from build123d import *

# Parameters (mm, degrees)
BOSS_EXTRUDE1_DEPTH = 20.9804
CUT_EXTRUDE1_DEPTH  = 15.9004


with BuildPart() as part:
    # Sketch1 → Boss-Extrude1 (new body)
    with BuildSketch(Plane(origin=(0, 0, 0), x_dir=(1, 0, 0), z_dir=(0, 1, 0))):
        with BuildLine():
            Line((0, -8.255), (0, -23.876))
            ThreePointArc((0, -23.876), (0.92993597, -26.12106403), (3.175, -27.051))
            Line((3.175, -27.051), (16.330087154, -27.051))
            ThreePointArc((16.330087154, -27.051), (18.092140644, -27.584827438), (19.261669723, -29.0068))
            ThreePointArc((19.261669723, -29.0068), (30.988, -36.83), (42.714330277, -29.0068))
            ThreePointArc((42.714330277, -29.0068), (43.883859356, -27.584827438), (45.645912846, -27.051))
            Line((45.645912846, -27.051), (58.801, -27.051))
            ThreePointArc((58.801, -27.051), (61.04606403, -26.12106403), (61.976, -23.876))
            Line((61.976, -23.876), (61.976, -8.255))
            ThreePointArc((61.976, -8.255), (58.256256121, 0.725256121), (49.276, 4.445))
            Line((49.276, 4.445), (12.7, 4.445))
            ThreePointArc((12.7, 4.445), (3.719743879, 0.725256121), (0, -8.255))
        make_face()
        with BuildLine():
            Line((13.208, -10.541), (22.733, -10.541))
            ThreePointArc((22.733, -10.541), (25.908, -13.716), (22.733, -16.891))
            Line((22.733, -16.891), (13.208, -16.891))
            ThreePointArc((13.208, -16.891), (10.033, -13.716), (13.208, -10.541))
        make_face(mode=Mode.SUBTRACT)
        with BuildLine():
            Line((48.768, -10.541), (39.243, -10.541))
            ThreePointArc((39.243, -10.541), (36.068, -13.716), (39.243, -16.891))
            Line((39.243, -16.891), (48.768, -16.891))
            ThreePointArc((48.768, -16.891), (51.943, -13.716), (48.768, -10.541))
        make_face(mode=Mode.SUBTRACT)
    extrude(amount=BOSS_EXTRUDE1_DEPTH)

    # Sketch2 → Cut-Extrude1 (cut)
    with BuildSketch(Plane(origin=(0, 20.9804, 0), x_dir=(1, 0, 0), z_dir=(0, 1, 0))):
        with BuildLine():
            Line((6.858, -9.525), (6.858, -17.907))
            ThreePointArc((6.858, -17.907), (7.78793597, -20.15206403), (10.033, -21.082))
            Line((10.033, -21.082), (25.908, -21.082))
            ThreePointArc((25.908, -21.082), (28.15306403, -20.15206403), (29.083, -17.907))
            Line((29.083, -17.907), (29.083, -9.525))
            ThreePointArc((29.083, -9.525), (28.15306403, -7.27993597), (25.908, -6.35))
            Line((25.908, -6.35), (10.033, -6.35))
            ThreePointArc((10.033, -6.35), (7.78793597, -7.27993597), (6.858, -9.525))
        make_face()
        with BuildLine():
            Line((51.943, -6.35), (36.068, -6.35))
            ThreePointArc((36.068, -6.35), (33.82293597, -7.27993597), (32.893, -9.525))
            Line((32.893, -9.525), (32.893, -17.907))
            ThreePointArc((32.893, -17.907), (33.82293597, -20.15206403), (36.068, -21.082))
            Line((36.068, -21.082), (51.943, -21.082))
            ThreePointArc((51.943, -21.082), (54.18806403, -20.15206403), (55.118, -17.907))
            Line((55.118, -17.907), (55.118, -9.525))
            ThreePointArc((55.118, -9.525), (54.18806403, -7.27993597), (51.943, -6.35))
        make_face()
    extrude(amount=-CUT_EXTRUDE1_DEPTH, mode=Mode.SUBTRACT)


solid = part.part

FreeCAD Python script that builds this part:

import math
import FreeCAD as App
import Part
import Sketcher
Q = App.Units.Quantity

doc = App.newDocument("Part")
body = doc.addObject("PartDesign::Body", "Body")

# Sketch on XZ plane
sketch1 = doc.addObject("Sketcher::SketchObject", "Sketch")
body.addObject(sketch1)
sketch1.AttachmentSupport = (doc.XZ_Plane, [""])
sketch1.MapMode = "FlatFace"
sketch1.addGeometry([
    Part.LineSegment(App.Vector(0, 8.255, 0), App.Vector(0, 23.876, 0)),  # 0
    Part.ArcOfCircle(Part.Circle(App.Vector(3.175, 23.876, 0), App.Vector(0, 0, 1), 3.175), math.radians(90), math.radians(180)),  # 1
    Part.LineSegment(App.Vector(3.175, 27.051, 0), App.Vector(16.330087, 27.051, 0)),  # 2
    Part.ArcOfCircle(Part.Circle(App.Vector(16.330087, 30.226, 0), App.Vector(0, 0, 1), 3.175), math.radians(-90), math.radians(-22.581673)),  # 3
    Part.ArcOfCircle(Part.Circle(App.Vector(30.988, 24.13, 0), App.Vector(0, 0, 1), 12.7), math.radians(22.581673), math.radians(157.418327)),  # 4
    Part.ArcOfCircle(Part.Circle(App.Vector(45.645913, 30.226, 0), App.Vector(0, 0, 1), 3.175), math.radians(-157.418327), math.radians(-90)),  # 5
    Part.LineSegment(App.Vector(45.645913, 27.051, 0), App.Vector(58.801, 27.051, 0)),  # 6
    Part.ArcOfCircle(Part.Circle(App.Vector(58.801, 23.876, 0), App.Vector(0, 0, 1), 3.175), math.radians(0), math.radians(90)),  # 7
    Part.LineSegment(App.Vector(61.976, 23.876, 0), App.Vector(61.976, 8.255, 0)),  # 8
    Part.ArcOfCircle(Part.Circle(App.Vector(49.276, 8.255, 0), App.Vector(0, 0, 1), 12.7), math.radians(-90), math.radians(0)),  # 9
    Part.LineSegment(App.Vector(49.276, -4.445, 0), App.Vector(12.7, -4.445, 0)),  # 10
    Part.ArcOfCircle(Part.Circle(App.Vector(12.7, 8.255, 0), App.Vector(0, 0, 1), 12.7), math.radians(180), math.radians(270)),  # 11
    Part.ArcOfCircle(Part.Circle(App.Vector(13.208, 13.716, 0), App.Vector(0, 0, 1), 3.175), math.radians(90), math.radians(270)),  # 12
    Part.LineSegment(App.Vector(13.208, 10.541, 0), App.Vector(22.733, 10.541, 0)),  # 13
    Part.ArcOfCircle(Part.Circle(App.Vector(22.733, 13.716, 0), App.Vector(0, 0, 1), 3.175), math.radians(-90), math.radians(90)),  # 14
    Part.LineSegment(App.Vector(22.733, 16.891, 0), App.Vector(13.208, 16.891, 0)),  # 15
    Part.LineSegment(App.Vector(39.243, 10.541, 0), App.Vector(48.768, 10.541, 0)),  # 16
    Part.ArcOfCircle(Part.Circle(App.Vector(48.768, 13.716, 0), App.Vector(0, 0, 1), 3.175), math.radians(-90), math.radians(90)),  # 17
    Part.LineSegment(App.Vector(48.768, 16.891, 0), App.Vector(39.243, 16.891, 0)),  # 18
    Part.ArcOfCircle(Part.Circle(App.Vector(39.243, 13.716, 0), App.Vector(0, 0, 1), 3.175), math.radians(90), math.radians(270)),  # 19
], False)
sketch1.addConstraint([
    Sketcher.Constraint("Tangent", 0, 2, 1, 2),
    Sketcher.Constraint("Tangent", 1, 1, 2, 1),
    Sketcher.Constraint("Tangent", 2, 2, 3, 1),
    Sketcher.Constraint("Tangent", 3, 2, 4, 2),
    Sketcher.Constraint("Tangent", 4, 1, 5, 1),
    Sketcher.Constraint("Tangent", 5, 2, 6, 1),
    Sketcher.Constraint("Tangent", 6, 2, 7, 2),
    Sketcher.Constraint("Tangent", 7, 1, 8, 1),
    Sketcher.Constraint("Tangent", 8, 2, 9, 2),
    Sketcher.Constraint("Tangent", 9, 1, 10, 1),
    Sketcher.Constraint("Tangent", 10, 2, 11, 2),
    Sketcher.Constraint("Tangent", 11, 1, 0, 1),
    Sketcher.Constraint("Tangent", 12, 2, 13, 1),
    Sketcher.Constraint("Tangent", 13, 2, 14, 1),
    Sketcher.Constraint("Tangent", 14, 2, 15, 1),
    Sketcher.Constraint("Tangent", 15, 2, 12, 1),
    Sketcher.Constraint("Tangent", 16, 2, 17, 1),
    Sketcher.Constraint("Tangent", 17, 2, 18, 1),
    Sketcher.Constraint("Tangent", 18, 2, 19, 1),
    Sketcher.Constraint("Tangent", 19, 2, 16, 1),
    Sketcher.Constraint("Vertical", 0),
    Sketcher.Constraint("Horizontal", 2),
    Sketcher.Constraint("Horizontal", 6),
    Sketcher.Constraint("Vertical", 8),
    Sketcher.Constraint("Horizontal", 10),
    Sketcher.Constraint("Horizontal", 13),
    Sketcher.Constraint("Horizontal", 15),
    Sketcher.Constraint("Horizontal", 16),
    Sketcher.Constraint("Horizontal", 18),
    Sketcher.Constraint("Equal", 1, 3),
    Sketcher.Constraint("Equal", 3, 5),
    Sketcher.Constraint("Equal", 5, 7),
    Sketcher.Constraint("Equal", 4, 9),
    Sketcher.Constraint("Equal", 9, 11),
    Sketcher.Constraint("Equal", 7, 12),
    Sketcher.Constraint("Equal", 14, 17),
    Sketcher.Constraint("PointOnObject", 0, 2, -2),
    Sketcher.Constraint("Horizontal", 3, 3, 5, 3),
    Sketcher.Constraint("Horizontal", 14, 3, 17, 3),
    Sketcher.Constraint("Equal", 2, 6),
    Sketcher.Constraint("Equal", 15, 16),
    Sketcher.Constraint("Radius", 4, Q("0.5 in")),
    Sketcher.Constraint("Radius", 1, Q("0.125 in")),
    Sketcher.Constraint("DistanceX", 10, 2, 10, 1, Q("1.44 in")),
    Sketcher.Constraint("DistanceY", 12, 3, 1, 3, Q("0.4 in")),
    Sketcher.Constraint("DistanceX", 12, 3, 4, 3, Q("0.7 in")),
    Sketcher.Constraint("DistanceX", 4, 3, 17, 3, Q("0.7 in")),
    Sketcher.Constraint("DistanceX", 13, 1, 13, 2, Q("0.375 in")),
    Sketcher.Constraint("DistanceY", 0, 1, 0, 2, Q("0.615 in")),
    Sketcher.Constraint("DistanceY", -1, 1, 1, 3, Q("0.94 in")),
    Sketcher.Constraint("DistanceY", -1, 1, 4, 3, Q("0.95 in")),
])
pad1 = doc.addObject("PartDesign::Pad", "Pad")
body.addObject(pad1)
pad1.Profile = sketch1
pad1.Length = Q("0.826 in")
pad1.Reversed = True

# Sketch on XZ plane
sketch2 = doc.addObject("Sketcher::SketchObject", "Sketch001")
body.addObject(sketch2)
sketch2.AttachmentSupport = (doc.XZ_Plane, [""])
sketch2.MapMode = "FlatFace"
sketch2.AttachmentOffset = App.Placement(App.Vector(0, 0, -0.826 * 25.4), App.Rotation())
sketch2.addGeometry([
    Part.LineSegment(App.Vector(6.858, 9.525, 0), App.Vector(6.858, 17.907, 0)),  # 0
    Part.ArcOfCircle(Part.Circle(App.Vector(10.033, 17.907, 0), App.Vector(0, 0, 1), 3.175), math.radians(90), math.radians(180)),  # 1
    Part.LineSegment(App.Vector(10.033, 21.082, 0), App.Vector(25.908, 21.082, 0)),  # 2
    Part.ArcOfCircle(Part.Circle(App.Vector(25.908, 17.907, 0), App.Vector(0, 0, 1), 3.175), math.radians(0), math.radians(90)),  # 3
    Part.LineSegment(App.Vector(29.083, 17.907, 0), App.Vector(29.083, 9.525, 0)),  # 4
    Part.ArcOfCircle(Part.Circle(App.Vector(25.908, 9.525, 0), App.Vector(0, 0, 1), 3.175), math.radians(-90), math.radians(0)),  # 5
    Part.LineSegment(App.Vector(25.908, 6.35, 0), App.Vector(10.033, 6.35, 0)),  # 6
    Part.ArcOfCircle(Part.Circle(App.Vector(10.033, 9.525, 0), App.Vector(0, 0, 1), 3.175), math.radians(-180), math.radians(-90)),  # 7
    Part.LineSegment(App.Vector(51.943, 6.35, 0), App.Vector(36.068, 6.35, 0)),  # 8
    Part.ArcOfCircle(Part.Circle(App.Vector(36.068, 9.525, 0), App.Vector(0, 0, 1), 3.175), math.radians(-180), math.radians(-90)),  # 9
    Part.LineSegment(App.Vector(32.893, 9.525, 0), App.Vector(32.893, 17.907, 0)),  # 10
    Part.ArcOfCircle(Part.Circle(App.Vector(36.068, 17.907, 0), App.Vector(0, 0, 1), 3.175), math.radians(90), math.radians(180)),  # 11
    Part.LineSegment(App.Vector(36.068, 21.082, 0), App.Vector(51.943, 21.082, 0)),  # 12
    Part.ArcOfCircle(Part.Circle(App.Vector(51.943, 17.907, 0), App.Vector(0, 0, 1), 3.175), math.radians(0), math.radians(90)),  # 13
    Part.LineSegment(App.Vector(55.118, 17.907, 0), App.Vector(55.118, 9.525, 0)),  # 14
    Part.ArcOfCircle(Part.Circle(App.Vector(51.943, 9.525, 0), App.Vector(0, 0, 1), 3.175), math.radians(-90), math.radians(0)),  # 15
], False)
sketch2.addConstraint([
    Sketcher.Constraint("Tangent", 0, 2, 1, 2),
    Sketcher.Constraint("Tangent", 1, 1, 2, 1),
    Sketcher.Constraint("Tangent", 2, 2, 3, 2),
    Sketcher.Constraint("Tangent", 3, 1, 4, 1),
    Sketcher.Constraint("Tangent", 4, 2, 5, 2),
    Sketcher.Constraint("Tangent", 5, 1, 6, 1),
    Sketcher.Constraint("Tangent", 6, 2, 7, 2),
    Sketcher.Constraint("Tangent", 7, 1, 0, 1),
    Sketcher.Constraint("Tangent", 8, 2, 9, 2),
    Sketcher.Constraint("Tangent", 9, 1, 10, 1),
    Sketcher.Constraint("Tangent", 10, 2, 11, 2),
    Sketcher.Constraint("Tangent", 11, 1, 12, 1),
    Sketcher.Constraint("Tangent", 12, 2, 13, 2),
    Sketcher.Constraint("Tangent", 13, 1, 14, 1),
    Sketcher.Constraint("Tangent", 14, 2, 15, 2),
    Sketcher.Constraint("Tangent", 15, 1, 8, 1),
    Sketcher.Constraint("Vertical", 0),
    Sketcher.Constraint("Horizontal", 2),
    Sketcher.Constraint("Vertical", 4),
    Sketcher.Constraint("Horizontal", 6),
    Sketcher.Constraint("Horizontal", 8),
    Sketcher.Constraint("Vertical", 10),
    Sketcher.Constraint("Horizontal", 12),
    Sketcher.Constraint("Vertical", 14),
    Sketcher.Constraint("Equal", 1, 3),
    Sketcher.Constraint("Equal", 3, 5),
    Sketcher.Constraint("Equal", 5, 7),
    Sketcher.Constraint("Equal", 7, 9),
    Sketcher.Constraint("Equal", 9, 11),
    Sketcher.Constraint("Equal", 11, 13),
    Sketcher.Constraint("Equal", 13, 15),
    Sketcher.Constraint("Horizontal", 7, 3, 9, 3),
    Sketcher.Constraint("Horizontal", 3, 3, 11, 3),
    Sketcher.Constraint("Equal", 6, 8),
    Sketcher.Constraint("Radius", 1, Q("0.125 in")),
    Sketcher.Constraint("DistanceY", 0, 1, 0, 2, Q("0.33 in")),
    Sketcher.Constraint("DistanceX", 5, 3, 9, 3, Q("0.4 in")),
    Sketcher.Constraint("DistanceX", 2, 1, 2, 2, Q("0.625 in")),
    Sketcher.Constraint("DistanceX", -1, 1, 3, 3, Q("1.02 in")),
    Sketcher.Constraint("DistanceY", -1, 1, 1, 1, Q("0.83 in")),
])
pocket1 = doc.addObject("PartDesign::Pocket", "Pocket")
body.addObject(pocket1)
pocket1.Profile = sketch2
pocket1.Length = Q("0.626 in")
pocket1.Reversed = True

doc.recompute()
